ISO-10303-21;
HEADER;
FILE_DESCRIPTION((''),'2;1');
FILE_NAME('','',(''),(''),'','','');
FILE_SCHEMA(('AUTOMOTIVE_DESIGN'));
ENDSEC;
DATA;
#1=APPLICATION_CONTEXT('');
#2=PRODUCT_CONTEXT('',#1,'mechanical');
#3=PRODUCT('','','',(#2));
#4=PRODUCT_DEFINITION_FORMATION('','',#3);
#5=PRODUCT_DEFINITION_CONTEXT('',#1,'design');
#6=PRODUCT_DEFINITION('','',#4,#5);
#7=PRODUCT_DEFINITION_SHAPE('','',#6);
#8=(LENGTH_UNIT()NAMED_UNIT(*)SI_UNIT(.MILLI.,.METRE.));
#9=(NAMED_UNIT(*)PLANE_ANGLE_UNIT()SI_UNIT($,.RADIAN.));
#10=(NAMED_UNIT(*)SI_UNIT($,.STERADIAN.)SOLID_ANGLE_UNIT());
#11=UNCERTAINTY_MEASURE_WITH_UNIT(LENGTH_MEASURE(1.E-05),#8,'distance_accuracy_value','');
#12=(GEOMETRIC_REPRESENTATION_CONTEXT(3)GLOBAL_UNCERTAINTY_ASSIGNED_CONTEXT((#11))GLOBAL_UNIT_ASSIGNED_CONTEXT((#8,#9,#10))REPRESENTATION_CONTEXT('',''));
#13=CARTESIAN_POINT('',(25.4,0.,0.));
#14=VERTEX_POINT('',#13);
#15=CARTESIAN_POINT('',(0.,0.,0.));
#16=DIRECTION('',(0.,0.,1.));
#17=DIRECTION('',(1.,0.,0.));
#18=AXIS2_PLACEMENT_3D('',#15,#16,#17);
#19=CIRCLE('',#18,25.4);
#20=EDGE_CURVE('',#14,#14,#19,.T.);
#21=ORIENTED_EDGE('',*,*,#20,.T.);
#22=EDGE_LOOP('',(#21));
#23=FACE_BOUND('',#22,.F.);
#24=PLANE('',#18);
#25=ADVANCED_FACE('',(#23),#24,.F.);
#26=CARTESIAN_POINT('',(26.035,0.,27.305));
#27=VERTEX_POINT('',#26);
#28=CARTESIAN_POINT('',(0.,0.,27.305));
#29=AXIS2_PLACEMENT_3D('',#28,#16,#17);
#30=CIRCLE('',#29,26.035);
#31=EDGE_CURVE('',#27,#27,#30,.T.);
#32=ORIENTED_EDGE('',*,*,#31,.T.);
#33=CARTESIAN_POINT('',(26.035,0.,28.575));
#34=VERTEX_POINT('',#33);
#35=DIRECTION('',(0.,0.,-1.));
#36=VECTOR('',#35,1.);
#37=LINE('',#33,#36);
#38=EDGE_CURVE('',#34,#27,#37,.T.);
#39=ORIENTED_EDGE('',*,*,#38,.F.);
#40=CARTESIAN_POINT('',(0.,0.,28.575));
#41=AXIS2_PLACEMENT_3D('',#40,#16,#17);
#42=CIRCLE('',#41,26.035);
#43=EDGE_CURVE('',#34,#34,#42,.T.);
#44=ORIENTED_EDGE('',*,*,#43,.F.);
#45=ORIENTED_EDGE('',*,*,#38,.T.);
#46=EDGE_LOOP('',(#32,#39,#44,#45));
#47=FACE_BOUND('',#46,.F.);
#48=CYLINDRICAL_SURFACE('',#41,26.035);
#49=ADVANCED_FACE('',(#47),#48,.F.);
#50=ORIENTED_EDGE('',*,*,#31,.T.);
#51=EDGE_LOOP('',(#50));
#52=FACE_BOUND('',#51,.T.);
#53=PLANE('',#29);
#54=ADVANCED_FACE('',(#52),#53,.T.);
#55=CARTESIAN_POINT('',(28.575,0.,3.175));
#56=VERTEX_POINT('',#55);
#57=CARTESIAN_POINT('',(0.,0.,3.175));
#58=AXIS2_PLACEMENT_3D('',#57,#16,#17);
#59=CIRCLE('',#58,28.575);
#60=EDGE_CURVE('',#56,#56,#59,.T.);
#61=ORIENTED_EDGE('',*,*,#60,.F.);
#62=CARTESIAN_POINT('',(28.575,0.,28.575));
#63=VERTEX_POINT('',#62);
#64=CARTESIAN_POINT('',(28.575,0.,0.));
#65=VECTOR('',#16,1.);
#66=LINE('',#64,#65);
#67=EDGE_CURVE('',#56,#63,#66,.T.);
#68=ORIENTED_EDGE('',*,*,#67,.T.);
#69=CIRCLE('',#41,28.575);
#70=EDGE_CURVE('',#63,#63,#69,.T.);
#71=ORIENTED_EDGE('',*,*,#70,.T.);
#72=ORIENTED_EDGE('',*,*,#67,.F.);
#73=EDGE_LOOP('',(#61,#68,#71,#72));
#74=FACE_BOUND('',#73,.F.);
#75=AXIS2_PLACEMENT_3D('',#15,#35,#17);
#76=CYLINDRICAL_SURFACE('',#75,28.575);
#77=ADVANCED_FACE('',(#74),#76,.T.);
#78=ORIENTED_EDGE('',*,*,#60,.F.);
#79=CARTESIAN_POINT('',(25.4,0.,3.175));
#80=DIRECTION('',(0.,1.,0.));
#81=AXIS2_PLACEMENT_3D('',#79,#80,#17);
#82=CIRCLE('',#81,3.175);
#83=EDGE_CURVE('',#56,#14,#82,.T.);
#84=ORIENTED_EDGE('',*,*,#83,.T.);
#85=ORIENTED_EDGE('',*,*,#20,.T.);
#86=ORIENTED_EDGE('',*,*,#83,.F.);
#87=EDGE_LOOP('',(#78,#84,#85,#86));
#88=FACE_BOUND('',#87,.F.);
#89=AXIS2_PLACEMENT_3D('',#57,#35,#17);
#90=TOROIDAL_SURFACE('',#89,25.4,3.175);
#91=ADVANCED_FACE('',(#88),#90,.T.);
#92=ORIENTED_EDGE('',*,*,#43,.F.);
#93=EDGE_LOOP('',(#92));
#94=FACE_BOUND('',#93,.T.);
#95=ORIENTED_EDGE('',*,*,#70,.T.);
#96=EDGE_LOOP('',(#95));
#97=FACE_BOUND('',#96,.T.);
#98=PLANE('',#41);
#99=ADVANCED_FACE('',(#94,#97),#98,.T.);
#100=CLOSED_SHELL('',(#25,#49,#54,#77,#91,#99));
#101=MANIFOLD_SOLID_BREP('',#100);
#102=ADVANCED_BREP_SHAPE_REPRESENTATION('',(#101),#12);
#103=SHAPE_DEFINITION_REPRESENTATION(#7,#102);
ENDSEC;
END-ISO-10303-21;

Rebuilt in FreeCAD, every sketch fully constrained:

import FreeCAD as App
import Part
import Sketcher
from FreeCAD import Vector
Q = App.Units.Quantity


def edges_at(feature, points):
    """Names of the edges that pass closest to the given points."""
    edges = feature.Shape.Edges
    near = lambda p: min(range(len(edges)), key=lambda i: edges[i].distToShape(Part.Vertex(*p))[0])
    return sorted({f"Edge{near(p) + 1}" for p in points})

doc = App.newDocument("Part")
body = doc.addObject("PartDesign::Body", "Body")

sketch1 = body.newObject("Sketcher::SketchObject", "Sketch")
sketch1.AttachmentSupport = (doc.getObject("XY_Plane"), [""])
sketch1.MapMode = "FlatFace"
sketch1.addGeometry(Part.Circle(Vector(0, 0, 0), Vector(0, 0, 1), 28.575), False)
sketch1.addConstraint(Sketcher.Constraint("Coincident", 0, 3, -1, 1))
sketch1.addConstraint(Sketcher.Constraint("Diameter", 0, Q("2.25 in")))
pad1 = body.newObject("PartDesign::Pad", "Pad")
pad1.Profile = sketch1
pad1.Length = Q("1.125 in")

sketch2 = body.newObject("Sketcher::SketchObject", "Sketch001")
sketch2.AttachmentSupport = (doc.getObject("XY_Plane"), [""])
sketch2.MapMode = "FlatFace"
sketch2.AttachmentOffset = App.Placement(Vector(0, 0, 1.125 * 25.4), App.Rotation())
sketch2.addGeometry(Part.Circle(Vector(0, 0, 0), Vector(0, 0, 1), 26.035), False)
sketch2.addConstraint(Sketcher.Constraint("Coincident", 0, 3, -1, 1))
sketch2.addConstraint(Sketcher.Constraint("Diameter", 0, Q("2.05 in")))
pocket1 = body.newObject("PartDesign::Pocket", "Pocket")
pocket1.Profile = sketch2
pocket1.Length = Q("0.05 in")
doc.recompute()

fillet = body.newObject("PartDesign::Fillet", "Fillet")
fillet.Base = (pocket1, edges_at(pocket1, [(-28.575, 0, 0)]))
fillet.Radius = Q("0.125 in")

doc.recompute()
